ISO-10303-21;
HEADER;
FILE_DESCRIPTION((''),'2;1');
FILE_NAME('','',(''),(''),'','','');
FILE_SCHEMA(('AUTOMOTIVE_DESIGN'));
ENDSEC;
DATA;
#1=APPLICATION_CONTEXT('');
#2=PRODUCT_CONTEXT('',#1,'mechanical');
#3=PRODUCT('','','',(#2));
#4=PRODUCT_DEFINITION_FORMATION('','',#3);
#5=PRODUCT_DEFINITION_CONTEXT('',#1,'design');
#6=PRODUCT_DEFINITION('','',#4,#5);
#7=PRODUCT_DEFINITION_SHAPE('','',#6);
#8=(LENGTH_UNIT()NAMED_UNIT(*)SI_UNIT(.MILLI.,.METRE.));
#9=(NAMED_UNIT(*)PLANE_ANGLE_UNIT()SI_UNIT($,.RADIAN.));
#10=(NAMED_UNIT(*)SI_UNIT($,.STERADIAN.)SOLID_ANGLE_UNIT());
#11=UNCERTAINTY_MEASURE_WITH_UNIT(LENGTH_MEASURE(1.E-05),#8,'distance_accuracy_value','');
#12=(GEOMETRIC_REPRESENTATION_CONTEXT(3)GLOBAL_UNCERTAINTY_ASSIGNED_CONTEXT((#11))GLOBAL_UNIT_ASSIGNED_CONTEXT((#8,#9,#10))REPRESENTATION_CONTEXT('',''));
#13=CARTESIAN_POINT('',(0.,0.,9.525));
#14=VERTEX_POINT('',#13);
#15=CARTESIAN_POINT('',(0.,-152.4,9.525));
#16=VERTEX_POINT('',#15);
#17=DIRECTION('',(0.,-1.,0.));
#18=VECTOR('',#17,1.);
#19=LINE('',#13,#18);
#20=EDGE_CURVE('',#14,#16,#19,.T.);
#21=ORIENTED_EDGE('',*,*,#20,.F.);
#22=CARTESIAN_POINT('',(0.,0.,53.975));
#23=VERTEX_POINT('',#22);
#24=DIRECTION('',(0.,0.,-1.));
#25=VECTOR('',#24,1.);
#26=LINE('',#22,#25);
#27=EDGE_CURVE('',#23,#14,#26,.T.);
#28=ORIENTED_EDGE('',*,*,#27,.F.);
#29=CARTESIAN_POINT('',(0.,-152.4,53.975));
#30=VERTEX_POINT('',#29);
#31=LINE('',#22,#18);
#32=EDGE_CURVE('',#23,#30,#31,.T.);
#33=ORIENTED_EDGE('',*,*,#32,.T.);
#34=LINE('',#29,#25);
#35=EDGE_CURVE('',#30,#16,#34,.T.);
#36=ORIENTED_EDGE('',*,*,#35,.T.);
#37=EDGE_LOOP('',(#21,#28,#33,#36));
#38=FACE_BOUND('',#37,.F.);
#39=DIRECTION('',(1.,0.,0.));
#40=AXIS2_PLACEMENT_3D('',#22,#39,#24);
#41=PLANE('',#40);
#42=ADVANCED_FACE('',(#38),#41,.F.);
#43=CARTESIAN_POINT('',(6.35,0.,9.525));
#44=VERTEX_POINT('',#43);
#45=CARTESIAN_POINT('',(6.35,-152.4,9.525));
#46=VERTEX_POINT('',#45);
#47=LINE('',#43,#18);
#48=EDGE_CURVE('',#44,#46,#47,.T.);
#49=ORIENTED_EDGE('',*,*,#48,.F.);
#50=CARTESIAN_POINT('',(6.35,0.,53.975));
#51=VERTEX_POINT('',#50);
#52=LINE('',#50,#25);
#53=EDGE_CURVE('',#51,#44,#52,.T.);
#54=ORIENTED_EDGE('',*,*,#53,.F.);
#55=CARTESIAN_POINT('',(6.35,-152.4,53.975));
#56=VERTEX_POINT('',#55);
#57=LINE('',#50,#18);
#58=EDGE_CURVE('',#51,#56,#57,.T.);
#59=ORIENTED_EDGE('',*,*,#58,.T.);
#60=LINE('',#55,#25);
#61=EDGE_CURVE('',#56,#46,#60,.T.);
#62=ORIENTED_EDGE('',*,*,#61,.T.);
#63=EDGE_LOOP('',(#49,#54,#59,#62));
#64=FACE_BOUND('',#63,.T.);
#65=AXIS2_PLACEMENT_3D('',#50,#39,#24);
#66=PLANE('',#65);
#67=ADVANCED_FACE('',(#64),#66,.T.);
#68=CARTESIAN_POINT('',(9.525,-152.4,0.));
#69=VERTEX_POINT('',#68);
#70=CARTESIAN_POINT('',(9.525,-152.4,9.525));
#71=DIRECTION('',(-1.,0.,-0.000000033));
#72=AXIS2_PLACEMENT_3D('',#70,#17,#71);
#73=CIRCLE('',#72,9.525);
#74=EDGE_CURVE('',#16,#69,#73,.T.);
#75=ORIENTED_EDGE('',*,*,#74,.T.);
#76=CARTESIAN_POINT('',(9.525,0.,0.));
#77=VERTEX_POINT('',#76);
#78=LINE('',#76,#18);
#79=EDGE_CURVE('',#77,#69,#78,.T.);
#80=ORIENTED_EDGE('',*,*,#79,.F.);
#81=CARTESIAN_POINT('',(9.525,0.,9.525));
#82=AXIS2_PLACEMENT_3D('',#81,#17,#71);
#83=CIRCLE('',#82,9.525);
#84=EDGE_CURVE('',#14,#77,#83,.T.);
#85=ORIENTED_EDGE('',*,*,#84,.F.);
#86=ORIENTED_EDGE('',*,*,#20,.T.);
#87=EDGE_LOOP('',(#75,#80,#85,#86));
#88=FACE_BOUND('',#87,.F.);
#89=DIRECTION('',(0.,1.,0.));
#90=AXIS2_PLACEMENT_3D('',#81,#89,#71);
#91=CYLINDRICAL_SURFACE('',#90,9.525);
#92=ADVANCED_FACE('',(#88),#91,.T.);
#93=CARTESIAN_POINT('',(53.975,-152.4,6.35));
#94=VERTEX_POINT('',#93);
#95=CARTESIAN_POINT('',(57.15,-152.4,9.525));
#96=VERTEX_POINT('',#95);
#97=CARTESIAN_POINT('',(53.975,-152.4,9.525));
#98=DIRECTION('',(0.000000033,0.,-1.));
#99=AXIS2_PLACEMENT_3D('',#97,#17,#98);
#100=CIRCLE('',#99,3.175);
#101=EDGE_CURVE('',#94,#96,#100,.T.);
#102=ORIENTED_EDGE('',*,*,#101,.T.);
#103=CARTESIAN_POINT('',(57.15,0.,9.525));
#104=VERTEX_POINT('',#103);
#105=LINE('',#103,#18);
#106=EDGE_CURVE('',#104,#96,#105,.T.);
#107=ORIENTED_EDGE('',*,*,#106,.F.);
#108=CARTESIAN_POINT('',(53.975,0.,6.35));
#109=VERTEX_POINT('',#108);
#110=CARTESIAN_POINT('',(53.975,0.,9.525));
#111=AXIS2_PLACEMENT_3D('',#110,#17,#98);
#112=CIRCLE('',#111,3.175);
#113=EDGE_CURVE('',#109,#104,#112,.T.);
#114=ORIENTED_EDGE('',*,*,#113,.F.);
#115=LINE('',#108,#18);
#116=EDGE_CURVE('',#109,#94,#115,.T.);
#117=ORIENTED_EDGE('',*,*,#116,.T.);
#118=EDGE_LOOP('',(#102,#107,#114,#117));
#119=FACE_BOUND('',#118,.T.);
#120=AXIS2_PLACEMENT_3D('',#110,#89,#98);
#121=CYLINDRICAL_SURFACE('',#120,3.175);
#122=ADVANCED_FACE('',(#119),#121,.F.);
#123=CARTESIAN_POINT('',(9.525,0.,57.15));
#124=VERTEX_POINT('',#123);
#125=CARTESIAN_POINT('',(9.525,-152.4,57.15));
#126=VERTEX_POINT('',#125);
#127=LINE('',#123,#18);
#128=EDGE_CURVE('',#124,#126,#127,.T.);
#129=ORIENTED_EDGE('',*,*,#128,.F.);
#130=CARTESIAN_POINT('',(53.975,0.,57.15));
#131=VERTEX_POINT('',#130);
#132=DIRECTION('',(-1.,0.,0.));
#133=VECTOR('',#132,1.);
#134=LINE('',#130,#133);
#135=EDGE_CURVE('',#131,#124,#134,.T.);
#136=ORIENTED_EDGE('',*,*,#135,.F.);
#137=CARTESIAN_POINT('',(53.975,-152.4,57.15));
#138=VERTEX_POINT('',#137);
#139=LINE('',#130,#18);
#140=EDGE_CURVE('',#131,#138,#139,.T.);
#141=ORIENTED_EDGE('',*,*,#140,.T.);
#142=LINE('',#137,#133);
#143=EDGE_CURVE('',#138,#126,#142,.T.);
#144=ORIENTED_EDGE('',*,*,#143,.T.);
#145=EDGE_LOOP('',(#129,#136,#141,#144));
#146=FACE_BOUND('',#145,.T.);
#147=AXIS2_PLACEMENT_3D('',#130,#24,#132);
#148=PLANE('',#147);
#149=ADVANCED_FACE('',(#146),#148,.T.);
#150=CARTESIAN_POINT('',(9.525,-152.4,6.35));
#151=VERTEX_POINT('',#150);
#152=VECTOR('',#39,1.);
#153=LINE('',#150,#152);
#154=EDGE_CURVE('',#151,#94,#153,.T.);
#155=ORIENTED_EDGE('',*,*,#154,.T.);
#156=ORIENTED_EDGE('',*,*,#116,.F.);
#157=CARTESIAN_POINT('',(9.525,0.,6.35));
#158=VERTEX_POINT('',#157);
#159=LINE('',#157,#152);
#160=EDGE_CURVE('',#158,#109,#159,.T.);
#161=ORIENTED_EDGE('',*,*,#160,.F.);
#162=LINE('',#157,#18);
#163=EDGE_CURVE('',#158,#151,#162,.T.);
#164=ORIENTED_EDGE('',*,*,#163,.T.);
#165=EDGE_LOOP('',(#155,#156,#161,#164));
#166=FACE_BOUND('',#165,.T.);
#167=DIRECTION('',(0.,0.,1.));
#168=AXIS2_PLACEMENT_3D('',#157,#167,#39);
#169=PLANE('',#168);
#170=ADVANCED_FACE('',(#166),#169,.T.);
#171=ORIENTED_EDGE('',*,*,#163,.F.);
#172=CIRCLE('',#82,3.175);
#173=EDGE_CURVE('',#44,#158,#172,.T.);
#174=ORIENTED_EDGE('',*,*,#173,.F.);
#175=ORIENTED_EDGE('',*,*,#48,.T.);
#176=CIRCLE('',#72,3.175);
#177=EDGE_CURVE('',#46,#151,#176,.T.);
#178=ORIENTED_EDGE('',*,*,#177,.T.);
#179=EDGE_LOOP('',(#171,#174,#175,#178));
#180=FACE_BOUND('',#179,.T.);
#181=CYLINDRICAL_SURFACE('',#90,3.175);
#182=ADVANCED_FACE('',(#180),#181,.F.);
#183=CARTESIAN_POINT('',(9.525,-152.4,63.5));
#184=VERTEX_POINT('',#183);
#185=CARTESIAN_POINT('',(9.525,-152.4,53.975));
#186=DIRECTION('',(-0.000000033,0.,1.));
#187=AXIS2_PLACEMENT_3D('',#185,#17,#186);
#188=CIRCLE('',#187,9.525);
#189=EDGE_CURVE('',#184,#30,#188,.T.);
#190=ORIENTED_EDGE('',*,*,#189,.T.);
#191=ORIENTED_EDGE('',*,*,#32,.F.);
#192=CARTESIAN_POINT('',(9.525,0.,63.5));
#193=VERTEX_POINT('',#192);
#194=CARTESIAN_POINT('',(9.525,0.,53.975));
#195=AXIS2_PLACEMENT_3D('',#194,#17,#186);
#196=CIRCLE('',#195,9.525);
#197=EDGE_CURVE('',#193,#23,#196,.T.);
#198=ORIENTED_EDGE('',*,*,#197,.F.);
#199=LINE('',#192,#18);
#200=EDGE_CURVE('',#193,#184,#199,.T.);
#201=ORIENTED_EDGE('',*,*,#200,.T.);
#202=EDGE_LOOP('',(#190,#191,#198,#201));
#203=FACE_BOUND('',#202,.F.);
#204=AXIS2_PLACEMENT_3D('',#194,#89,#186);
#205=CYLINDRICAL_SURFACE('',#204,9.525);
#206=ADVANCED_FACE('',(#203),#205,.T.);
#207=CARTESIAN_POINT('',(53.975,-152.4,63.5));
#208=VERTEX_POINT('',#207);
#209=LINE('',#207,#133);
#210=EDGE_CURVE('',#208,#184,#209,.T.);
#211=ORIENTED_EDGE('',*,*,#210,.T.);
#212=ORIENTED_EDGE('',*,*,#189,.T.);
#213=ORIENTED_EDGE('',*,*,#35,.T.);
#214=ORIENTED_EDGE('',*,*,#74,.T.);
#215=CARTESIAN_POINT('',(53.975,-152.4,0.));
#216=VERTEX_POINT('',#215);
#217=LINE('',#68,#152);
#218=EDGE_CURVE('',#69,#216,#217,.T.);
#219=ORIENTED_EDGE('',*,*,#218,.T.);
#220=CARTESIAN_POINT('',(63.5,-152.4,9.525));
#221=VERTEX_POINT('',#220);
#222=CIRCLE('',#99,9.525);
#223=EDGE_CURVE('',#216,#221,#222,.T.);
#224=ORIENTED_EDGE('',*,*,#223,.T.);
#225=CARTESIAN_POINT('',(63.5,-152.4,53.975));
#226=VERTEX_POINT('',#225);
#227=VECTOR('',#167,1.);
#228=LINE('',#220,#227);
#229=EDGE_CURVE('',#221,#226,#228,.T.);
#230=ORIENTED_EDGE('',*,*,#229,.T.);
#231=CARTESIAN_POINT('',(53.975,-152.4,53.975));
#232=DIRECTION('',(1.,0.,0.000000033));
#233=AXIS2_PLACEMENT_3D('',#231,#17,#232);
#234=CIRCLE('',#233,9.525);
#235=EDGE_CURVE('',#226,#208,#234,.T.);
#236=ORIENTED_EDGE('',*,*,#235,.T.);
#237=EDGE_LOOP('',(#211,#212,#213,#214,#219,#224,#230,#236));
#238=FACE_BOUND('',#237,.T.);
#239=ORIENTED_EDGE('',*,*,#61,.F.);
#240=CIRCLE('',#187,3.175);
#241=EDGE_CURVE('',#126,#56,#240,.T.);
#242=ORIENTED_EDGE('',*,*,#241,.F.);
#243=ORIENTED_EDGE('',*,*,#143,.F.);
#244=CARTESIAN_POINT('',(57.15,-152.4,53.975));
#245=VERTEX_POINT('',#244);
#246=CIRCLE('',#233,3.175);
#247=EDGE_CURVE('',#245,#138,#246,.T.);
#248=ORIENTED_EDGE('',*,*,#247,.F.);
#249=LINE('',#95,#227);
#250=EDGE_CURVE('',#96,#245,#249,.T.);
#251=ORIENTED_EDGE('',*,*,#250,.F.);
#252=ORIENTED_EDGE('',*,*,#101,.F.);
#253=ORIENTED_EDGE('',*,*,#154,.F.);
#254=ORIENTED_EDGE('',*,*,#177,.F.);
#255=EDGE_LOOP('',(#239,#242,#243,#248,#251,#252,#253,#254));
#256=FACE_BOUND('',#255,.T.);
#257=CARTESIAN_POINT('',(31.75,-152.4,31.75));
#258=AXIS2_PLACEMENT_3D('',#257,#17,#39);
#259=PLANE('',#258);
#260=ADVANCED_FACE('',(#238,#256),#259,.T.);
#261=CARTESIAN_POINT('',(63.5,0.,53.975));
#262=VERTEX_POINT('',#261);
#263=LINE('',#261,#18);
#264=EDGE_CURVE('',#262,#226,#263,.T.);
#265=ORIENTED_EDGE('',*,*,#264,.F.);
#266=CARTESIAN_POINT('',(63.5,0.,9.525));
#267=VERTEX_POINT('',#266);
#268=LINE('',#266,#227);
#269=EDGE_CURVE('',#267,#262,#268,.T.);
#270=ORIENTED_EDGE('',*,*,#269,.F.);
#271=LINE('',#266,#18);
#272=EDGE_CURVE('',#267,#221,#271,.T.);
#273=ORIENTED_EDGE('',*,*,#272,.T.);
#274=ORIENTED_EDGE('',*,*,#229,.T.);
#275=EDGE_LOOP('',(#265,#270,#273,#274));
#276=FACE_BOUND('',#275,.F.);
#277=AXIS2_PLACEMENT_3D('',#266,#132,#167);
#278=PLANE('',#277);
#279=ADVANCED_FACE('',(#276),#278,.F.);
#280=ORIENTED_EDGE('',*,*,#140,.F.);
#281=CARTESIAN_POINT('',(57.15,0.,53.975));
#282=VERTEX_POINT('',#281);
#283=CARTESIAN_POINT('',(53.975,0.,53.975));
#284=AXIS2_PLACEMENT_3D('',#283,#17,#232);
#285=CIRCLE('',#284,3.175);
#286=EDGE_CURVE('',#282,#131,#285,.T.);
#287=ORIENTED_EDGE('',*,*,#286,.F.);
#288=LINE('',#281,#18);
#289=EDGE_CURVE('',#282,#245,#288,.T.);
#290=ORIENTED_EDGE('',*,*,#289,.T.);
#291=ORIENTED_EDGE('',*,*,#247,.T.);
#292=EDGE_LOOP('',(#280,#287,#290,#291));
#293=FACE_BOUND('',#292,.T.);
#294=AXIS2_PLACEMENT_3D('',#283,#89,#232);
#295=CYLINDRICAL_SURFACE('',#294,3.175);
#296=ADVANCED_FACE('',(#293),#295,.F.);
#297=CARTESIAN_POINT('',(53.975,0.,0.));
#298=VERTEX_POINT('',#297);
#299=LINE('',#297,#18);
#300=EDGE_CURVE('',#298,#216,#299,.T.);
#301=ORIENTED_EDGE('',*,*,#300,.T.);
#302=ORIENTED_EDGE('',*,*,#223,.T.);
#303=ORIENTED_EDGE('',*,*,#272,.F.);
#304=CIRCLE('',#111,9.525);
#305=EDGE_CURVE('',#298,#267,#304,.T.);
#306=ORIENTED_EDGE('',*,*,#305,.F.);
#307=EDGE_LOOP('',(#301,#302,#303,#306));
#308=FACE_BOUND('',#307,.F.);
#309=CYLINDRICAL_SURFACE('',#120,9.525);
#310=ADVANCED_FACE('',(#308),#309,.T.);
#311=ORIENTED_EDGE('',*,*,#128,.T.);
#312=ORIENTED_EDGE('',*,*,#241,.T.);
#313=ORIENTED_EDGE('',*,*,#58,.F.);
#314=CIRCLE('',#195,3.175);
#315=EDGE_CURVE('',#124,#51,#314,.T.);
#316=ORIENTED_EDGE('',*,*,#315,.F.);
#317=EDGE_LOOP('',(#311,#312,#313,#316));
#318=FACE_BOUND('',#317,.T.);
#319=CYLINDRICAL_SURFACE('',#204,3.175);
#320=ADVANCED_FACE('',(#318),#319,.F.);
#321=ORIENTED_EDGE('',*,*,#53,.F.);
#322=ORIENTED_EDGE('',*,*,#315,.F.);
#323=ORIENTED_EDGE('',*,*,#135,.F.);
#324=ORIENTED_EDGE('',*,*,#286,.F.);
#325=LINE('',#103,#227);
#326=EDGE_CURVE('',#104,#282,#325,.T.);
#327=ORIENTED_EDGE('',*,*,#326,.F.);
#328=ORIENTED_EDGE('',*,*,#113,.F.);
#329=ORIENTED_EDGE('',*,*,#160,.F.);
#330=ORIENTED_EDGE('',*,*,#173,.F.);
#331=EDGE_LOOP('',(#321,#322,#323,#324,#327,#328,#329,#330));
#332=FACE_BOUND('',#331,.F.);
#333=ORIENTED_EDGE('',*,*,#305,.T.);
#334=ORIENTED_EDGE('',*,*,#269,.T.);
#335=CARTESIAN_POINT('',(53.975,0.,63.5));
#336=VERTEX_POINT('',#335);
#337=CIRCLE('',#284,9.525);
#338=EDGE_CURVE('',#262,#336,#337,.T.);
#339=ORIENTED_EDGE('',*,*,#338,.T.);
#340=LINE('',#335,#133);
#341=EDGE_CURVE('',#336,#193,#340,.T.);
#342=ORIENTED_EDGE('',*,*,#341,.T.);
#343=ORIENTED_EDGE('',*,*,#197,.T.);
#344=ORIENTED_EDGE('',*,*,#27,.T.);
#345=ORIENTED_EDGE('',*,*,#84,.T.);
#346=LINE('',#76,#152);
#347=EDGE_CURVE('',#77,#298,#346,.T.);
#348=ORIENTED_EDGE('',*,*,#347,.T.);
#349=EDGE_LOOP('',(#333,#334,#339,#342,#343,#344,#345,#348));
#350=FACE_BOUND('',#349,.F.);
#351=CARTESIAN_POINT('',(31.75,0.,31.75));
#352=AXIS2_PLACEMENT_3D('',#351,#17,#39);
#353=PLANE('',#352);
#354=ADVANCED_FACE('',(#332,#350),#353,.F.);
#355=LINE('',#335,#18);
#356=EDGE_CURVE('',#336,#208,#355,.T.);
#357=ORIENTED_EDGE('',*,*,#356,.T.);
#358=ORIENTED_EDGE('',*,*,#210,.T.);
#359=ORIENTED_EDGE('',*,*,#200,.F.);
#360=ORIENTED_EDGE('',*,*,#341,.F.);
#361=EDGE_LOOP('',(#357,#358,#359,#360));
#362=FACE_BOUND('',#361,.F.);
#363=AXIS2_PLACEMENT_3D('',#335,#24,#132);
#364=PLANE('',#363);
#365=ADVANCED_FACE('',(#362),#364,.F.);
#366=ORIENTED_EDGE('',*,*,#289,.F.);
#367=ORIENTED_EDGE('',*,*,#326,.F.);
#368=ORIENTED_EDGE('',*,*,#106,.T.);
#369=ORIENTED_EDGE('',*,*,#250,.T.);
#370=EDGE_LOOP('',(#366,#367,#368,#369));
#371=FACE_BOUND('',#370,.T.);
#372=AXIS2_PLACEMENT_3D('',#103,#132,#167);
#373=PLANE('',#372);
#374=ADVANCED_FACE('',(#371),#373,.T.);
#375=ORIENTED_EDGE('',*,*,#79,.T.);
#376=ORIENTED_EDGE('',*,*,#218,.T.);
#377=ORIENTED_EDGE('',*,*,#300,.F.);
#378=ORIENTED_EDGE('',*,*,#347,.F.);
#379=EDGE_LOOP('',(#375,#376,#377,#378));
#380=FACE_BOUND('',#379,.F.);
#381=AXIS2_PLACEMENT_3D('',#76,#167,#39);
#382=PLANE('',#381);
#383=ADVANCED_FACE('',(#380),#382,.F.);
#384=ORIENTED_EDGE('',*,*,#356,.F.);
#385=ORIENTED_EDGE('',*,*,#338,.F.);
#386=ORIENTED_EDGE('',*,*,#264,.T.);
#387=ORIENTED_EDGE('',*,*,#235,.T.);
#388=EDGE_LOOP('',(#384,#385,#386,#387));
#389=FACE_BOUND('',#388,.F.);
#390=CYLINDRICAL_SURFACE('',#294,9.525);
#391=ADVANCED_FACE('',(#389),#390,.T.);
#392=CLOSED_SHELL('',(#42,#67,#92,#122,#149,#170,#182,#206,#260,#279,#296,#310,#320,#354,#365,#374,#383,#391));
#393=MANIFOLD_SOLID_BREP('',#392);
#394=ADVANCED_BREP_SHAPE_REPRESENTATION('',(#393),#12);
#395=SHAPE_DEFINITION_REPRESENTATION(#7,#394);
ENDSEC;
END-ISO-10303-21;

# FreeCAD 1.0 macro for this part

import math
import FreeCAD as App
import Part
import Sketcher

V = App.Vector
Q = App.Units.Quantity


def faces_at(feature, points):
    """Names of the faces that lie closest to the given points."""
    faces = feature.Shape.Faces
    near = lambda p: min(range(len(faces)), key=lambda i: faces[i].distToShape(Part.Vertex(*p))[0])
    return sorted({f"Face{near(p) + 1}" for p in points})

doc = App.newDocument("Part")
params = doc.addObject("Spreadsheet::Sheet", "Params")
for row, (alias, value) in enumerate([
    ("sketch1_radius", "0.375 in"),
    ("sketch1_width", "1.75 in"),
    ("pad1_length", "6 in"),
    ("thickness_wall", "0.25 in"),
], start=1):
    params.set(f"A{row}", alias)
    params.set(f"B{row}", "=" + value)
    params.setAlias(f"B{row}", alias)

body = doc.addObject("PartDesign::Body", "Body")

# Sketch on XZ plane
sketch1 = body.newObject("Sketcher::SketchObject", "Sketch")
sketch1.AttachmentSupport = (doc.getObject("XZ_Plane"), [""])
sketch1.MapMode = "FlatFace"
sketch1.addGeometry(Part.ArcOfCircle(Part.Circle(V(10, 10, 0), V(0, 0, 1), 10), math.radians(-180), math.radians(-90)), False)
sketch1.addGeometry(Part.LineSegment(V(10, 0, 0), V(54, 0, 0)), False)
sketch1.addGeometry(Part.ArcOfCircle(Part.Circle(V(54, 10, 0), V(0, 0, 1), 10), math.radians(-90), math.radians(0)), False)
sketch1.addGeometry(Part.LineSegment(V(64, 10, 0), V(64, 54, 0)), False)
sketch1.addGeometry(Part.ArcOfCircle(Part.Circle(V(54, 54, 0), V(0, 0, 1), 10), math.radians(0), math.radians(90)), False)
sketch1.addGeometry(Part.LineSegment(V(54, 64, 0), V(10, 64, 0)), False)
sketch1.addGeometry(Part.ArcOfCircle(Part.Circle(V(10, 54, 0), V(0, 0, 1), 10), math.radians(90), math.radians(180)), False)
sketch1.addGeometry(Part.LineSegment(V(0, 54, 0), V(0, 10, 0)), False)
sketch1.addConstraint(Sketcher.Constraint("Tangent", 0, 2, 1, 1))
sketch1.addConstraint(Sketcher.Constraint("Tangent", 1, 2, 2, 1))
sketch1.addConstraint(Sketcher.Constraint("Tangent", 2, 2, 3, 1))
sketch1.addConstraint(Sketcher.Constraint("Tangent", 3, 2, 4, 1))
sketch1.addConstraint(Sketcher.Constraint("Tangent", 4, 2, 5, 1))
sketch1.addConstraint(Sketcher.Constraint("Tangent", 5, 2, 6, 1))
sketch1.addConstraint(Sketcher.Constraint("Tangent", 6, 2, 7, 1))
sketch1.addConstraint(Sketcher.Constraint("Tangent", 7, 2, 0, 1))
sketch1.addConstraint(Sketcher.Constraint("Horizontal", 1))
sketch1.addConstraint(Sketcher.Constraint("Vertical", 3))
sketch1.addConstraint(Sketcher.Constraint("Horizontal", 5))
sketch1.addConstraint(Sketcher.Constraint("Vertical", 7))
sketch1.addConstraint(Sketcher.Constraint("Equal", 0, 2))
sketch1.addConstraint(Sketcher.Constraint("Equal", 2, 4))
sketch1.addConstraint(Sketcher.Constraint("Equal", 4, 6))
sketch1.addConstraint(Sketcher.Constraint("PointOnObject", 0, 2, -1))
sketch1.addConstraint(Sketcher.Constraint("PointOnObject", 6, 2, -2))
sketch1.addConstraint(Sketcher.Constraint("Equal", 5, 3))
sketch1.addConstraint(Sketcher.Constraint("Radius", 0, Q("0.375 in")))
sketch1.addConstraint(Sketcher.Constraint("DistanceX", 1, 1, 1, 2, Q("1.75 in")))
sketch1.setExpression("Constraints[18]", "Params.sketch1_radius")
sketch1.setExpression("Constraints[19]", "Params.sketch1_width")
pad1 = body.newObject("PartDesign::Pad", "Pad")
pad1.Profile = sketch1
pad1.setExpression("Length", "Params.pad1_length")
doc.recompute()

thickness = body.newObject("PartDesign::Thickness", "Thickness")
thickness.Base = (pad1, faces_at(pad1, [(31.75, -152.4, 31.75), (31.75, 0, 31.75)]))
thickness.setExpression("Value", "Params.thickness_wall")
thickness.Reversed = True
thickness.Join = "Arc"

doc.recompute()
